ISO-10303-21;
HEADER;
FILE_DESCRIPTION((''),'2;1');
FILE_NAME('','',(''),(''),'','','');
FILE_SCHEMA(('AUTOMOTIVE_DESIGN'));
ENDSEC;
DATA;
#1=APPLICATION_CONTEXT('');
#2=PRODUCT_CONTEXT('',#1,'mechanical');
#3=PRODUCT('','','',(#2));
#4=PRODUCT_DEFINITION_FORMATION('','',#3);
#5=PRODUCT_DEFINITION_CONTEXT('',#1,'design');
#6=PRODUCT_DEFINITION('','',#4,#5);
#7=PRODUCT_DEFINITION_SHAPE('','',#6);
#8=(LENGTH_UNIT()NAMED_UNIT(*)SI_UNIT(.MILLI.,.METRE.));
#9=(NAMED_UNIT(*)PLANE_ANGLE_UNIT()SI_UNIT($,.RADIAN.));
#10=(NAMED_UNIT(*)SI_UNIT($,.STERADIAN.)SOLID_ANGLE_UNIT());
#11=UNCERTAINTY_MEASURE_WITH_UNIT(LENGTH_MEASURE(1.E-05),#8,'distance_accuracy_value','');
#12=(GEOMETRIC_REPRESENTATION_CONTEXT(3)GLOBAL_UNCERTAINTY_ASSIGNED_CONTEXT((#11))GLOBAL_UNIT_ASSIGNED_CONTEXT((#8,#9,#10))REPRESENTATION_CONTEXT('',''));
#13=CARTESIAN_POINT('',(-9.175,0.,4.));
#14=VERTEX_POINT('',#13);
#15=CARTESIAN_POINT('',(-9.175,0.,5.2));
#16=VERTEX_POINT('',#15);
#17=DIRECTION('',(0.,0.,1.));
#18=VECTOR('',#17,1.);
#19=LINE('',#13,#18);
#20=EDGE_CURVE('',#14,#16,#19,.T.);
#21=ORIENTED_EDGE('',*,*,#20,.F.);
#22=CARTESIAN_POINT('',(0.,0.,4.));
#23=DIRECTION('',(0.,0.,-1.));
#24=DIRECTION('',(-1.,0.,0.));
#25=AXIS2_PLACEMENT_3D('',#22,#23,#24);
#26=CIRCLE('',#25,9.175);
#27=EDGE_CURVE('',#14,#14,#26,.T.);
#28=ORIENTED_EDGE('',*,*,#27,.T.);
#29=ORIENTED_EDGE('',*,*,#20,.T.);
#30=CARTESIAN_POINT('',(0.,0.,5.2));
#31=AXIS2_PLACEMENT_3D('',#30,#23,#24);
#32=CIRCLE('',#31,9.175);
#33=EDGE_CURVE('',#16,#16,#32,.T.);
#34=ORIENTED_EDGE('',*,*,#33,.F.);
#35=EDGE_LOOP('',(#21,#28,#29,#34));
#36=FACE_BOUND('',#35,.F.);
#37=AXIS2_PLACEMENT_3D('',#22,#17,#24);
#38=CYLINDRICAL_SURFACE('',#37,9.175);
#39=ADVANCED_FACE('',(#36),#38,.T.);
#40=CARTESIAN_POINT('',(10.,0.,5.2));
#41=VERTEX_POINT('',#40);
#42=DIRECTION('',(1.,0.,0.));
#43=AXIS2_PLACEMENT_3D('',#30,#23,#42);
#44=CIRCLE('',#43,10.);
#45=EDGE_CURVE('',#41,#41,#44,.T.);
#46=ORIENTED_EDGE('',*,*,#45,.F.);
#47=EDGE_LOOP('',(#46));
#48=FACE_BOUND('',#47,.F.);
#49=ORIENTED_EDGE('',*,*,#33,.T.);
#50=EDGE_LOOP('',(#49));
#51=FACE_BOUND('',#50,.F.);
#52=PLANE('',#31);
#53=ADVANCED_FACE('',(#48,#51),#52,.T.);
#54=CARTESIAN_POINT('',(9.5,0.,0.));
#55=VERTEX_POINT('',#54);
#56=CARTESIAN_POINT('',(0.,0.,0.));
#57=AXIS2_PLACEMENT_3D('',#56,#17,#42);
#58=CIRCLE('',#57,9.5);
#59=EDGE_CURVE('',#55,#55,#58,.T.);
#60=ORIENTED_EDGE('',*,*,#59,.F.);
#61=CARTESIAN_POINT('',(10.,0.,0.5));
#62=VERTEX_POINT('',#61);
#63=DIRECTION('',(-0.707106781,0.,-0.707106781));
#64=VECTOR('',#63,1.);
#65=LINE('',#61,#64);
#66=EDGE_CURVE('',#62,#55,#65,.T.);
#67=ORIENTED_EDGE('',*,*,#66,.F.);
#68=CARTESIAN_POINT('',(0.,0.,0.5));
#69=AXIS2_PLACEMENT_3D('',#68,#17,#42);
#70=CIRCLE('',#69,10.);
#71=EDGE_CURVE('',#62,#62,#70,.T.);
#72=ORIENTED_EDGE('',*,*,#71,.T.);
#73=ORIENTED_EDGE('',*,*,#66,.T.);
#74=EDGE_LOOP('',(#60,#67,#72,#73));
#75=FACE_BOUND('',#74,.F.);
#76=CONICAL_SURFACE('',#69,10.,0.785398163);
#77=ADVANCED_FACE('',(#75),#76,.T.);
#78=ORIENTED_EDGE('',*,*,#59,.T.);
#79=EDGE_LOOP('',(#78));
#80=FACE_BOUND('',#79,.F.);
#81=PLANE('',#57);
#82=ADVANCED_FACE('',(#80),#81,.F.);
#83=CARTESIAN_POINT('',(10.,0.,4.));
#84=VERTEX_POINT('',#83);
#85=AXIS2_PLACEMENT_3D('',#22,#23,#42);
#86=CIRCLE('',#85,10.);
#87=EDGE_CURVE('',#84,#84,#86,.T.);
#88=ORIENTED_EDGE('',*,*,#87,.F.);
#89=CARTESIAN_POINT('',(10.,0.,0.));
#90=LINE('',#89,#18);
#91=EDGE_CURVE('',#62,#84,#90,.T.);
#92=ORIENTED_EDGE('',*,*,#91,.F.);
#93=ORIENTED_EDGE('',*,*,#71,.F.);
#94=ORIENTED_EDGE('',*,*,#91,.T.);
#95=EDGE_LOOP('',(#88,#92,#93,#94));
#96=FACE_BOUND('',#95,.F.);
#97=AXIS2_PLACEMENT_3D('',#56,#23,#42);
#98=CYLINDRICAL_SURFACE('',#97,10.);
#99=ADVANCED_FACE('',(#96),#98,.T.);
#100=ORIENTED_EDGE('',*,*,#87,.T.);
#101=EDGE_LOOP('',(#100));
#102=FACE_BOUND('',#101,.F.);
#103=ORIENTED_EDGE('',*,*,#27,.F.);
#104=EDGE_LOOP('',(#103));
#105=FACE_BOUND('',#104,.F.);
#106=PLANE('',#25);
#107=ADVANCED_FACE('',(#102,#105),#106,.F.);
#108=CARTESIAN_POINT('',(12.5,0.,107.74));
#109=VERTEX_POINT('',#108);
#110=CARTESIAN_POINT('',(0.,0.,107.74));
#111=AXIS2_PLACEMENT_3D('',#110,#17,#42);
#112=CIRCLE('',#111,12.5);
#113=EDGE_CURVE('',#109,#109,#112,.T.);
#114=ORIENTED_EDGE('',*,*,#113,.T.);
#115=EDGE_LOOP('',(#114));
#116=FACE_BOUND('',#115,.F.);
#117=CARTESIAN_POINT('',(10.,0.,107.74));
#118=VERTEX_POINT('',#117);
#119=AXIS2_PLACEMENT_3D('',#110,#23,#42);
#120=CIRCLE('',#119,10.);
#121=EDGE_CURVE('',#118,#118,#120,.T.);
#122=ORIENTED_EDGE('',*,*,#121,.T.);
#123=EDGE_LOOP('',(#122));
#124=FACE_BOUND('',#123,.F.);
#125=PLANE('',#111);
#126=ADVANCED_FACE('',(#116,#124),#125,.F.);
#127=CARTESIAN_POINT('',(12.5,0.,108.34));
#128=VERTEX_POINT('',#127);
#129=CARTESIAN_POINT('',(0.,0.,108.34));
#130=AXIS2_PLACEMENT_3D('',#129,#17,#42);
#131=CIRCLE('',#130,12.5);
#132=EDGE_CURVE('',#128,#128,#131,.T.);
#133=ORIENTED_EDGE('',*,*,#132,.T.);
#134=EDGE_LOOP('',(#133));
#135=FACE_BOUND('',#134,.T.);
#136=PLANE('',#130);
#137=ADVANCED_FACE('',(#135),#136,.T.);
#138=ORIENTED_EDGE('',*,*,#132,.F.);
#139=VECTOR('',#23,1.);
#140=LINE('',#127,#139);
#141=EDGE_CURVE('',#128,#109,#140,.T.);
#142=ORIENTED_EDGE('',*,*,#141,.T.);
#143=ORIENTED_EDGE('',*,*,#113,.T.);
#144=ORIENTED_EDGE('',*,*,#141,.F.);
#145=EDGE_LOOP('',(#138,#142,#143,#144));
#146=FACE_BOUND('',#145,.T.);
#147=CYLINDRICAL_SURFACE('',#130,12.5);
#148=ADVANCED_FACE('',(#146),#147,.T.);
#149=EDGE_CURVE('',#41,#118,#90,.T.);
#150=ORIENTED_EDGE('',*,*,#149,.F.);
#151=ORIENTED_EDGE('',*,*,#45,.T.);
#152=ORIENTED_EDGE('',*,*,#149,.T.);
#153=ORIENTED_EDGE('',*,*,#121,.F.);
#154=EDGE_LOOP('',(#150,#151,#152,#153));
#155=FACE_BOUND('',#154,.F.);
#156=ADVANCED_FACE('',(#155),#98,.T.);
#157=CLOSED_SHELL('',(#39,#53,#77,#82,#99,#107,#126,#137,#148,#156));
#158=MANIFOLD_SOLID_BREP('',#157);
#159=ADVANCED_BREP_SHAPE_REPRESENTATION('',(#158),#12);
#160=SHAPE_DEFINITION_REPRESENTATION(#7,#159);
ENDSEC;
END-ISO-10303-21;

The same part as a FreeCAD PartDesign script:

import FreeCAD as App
import Part
import Sketcher
Q = App.Units.Quantity


def edges_at(feature, points):
    """Names of the edges that pass closest to the given points."""
    edges = feature.Shape.Edges
    near = lambda p: min(range(len(edges)), key=lambda i: edges[i].distToShape(Part.Vertex(*p))[0])
    return sorted({f"Edge{near(p) + 1}" for p in points})

doc = App.newDocument("Part")
body = doc.addObject("PartDesign::Body", "Body")

# Sketch on XY plane
sketch1 = body.newObject("Sketcher::SketchObject", "Sketch")
sketch1.AttachmentSupport = (doc.getObject("XY_Plane"), [""])
sketch1.MapMode = "FlatFace"
sketch1.addGeometry(Part.Circle(App.Vector(0, 0, 0), App.Vector(0, 0, 1), 10), False)
sketch1.addConstraint(Sketcher.Constraint("Coincident", 0, 3, -1, 1))
sketch1.addConstraint(Sketcher.Constraint("Diameter", 0, Q("20 mm")))
pad1 = body.newObject("PartDesign::Pad", "Pad")
pad1.Profile = sketch1
pad1.Length = 108.34

# Sketch on XY plane
sketch2 = body.newObject("Sketcher::SketchObject", "Sketch001")
sketch2.AttachmentSupport = (doc.getObject("XY_Plane"), [""])
sketch2.MapMode = "FlatFace"
sketch2.AttachmentOffset = App.Placement(App.Vector(0, 0, 108.34), App.Rotation())
sketch2.addGeometry(Part.Circle(App.Vector(0, 0, 0), App.Vector(0, 0, 1), 12), False)
sketch2.addConstraint(Sketcher.Constraint("Coincident", 0, 3, -1, 1))
sketch2.addConstraint(Sketcher.Constraint("Diameter", 0, Q("25 mm")))
pad2 = body.newObject("PartDesign::Pad", "Pad001")
pad2.Profile = sketch2
pad2.Length = 0.6
pad2.Reversed = True

# Sketch on XZ plane
sketch3 = body.newObject("Sketcher::SketchObject", "Sketch002")
sketch3.AttachmentSupport = (doc.getObject("XZ_Plane"), [""])
sketch3.MapMode = "FlatFace"
sketch3.addGeometry(Part.LineSegment(App.Vector(-9.2, 4, 0), App.Vector(-15.3, 4, 0)), False)
sketch3.addGeometry(Part.LineSegment(App.Vector(-15.3, 4, 0), App.Vector(-15.3, 5.2, 0)), False)
sketch3.addGeometry(Part.LineSegment(App.Vector(-15.3, 5.2, 0), App.Vector(-9.2, 5.2, 0)), False)
sketch3.addGeometry(Part.LineSegment(App.Vector(-9.2, 5.2, 0), App.Vector(-9.2, 4, 0)), False)
sketch3.addConstraint(Sketcher.Constraint("Coincident", 0, 2, 1, 1))
sketch3.addConstraint(Sketcher.Constraint("Coincident", 1, 2, 2, 1))
sketch3.addConstraint(Sketcher.Constraint("Coincident", 2, 2, 3, 1))
sketch3.addConstraint(Sketcher.Constraint("Coincident", 3, 2, 0, 1))
sketch3.addConstraint(Sketcher.Constraint("Horizontal", 0))
sketch3.addConstraint(Sketcher.Constraint("Vertical", 1))
sketch3.addConstraint(Sketcher.Constraint("Horizontal", 2))
sketch3.addConstraint(Sketcher.Constraint("Vertical", 3))
sketch3.addConstraint(Sketcher.Constraint("DistanceY", 1, 1, 1, 2, Q("1.2 mm")))
sketch3.addConstraint(Sketcher.Constraint("DistanceY", -1, 1, 0, 2, Q("4 mm")))
sketch3.addConstraint(Sketcher.Constraint("DistanceX", 0, 2, 0, 1, Q("6.153 mm")))
sketch3.addConstraint(Sketcher.Constraint("DistanceX", 2, 2, -1, 1, Q("9.175 mm")))
groove = body.newObject("PartDesign::Groove", "Groove")
groove.Profile = sketch3
groove.ReferenceAxis = (sketch3, ["V_Axis"])
groove.Angle = 360
doc.recompute()

chamfer = body.newObject("PartDesign::Chamfer", "Chamfer")
chamfer.Base = (groove, edges_at(groove, [(-10, 0, 0)]))
chamfer.Size = 0.5

doc.recompute()
